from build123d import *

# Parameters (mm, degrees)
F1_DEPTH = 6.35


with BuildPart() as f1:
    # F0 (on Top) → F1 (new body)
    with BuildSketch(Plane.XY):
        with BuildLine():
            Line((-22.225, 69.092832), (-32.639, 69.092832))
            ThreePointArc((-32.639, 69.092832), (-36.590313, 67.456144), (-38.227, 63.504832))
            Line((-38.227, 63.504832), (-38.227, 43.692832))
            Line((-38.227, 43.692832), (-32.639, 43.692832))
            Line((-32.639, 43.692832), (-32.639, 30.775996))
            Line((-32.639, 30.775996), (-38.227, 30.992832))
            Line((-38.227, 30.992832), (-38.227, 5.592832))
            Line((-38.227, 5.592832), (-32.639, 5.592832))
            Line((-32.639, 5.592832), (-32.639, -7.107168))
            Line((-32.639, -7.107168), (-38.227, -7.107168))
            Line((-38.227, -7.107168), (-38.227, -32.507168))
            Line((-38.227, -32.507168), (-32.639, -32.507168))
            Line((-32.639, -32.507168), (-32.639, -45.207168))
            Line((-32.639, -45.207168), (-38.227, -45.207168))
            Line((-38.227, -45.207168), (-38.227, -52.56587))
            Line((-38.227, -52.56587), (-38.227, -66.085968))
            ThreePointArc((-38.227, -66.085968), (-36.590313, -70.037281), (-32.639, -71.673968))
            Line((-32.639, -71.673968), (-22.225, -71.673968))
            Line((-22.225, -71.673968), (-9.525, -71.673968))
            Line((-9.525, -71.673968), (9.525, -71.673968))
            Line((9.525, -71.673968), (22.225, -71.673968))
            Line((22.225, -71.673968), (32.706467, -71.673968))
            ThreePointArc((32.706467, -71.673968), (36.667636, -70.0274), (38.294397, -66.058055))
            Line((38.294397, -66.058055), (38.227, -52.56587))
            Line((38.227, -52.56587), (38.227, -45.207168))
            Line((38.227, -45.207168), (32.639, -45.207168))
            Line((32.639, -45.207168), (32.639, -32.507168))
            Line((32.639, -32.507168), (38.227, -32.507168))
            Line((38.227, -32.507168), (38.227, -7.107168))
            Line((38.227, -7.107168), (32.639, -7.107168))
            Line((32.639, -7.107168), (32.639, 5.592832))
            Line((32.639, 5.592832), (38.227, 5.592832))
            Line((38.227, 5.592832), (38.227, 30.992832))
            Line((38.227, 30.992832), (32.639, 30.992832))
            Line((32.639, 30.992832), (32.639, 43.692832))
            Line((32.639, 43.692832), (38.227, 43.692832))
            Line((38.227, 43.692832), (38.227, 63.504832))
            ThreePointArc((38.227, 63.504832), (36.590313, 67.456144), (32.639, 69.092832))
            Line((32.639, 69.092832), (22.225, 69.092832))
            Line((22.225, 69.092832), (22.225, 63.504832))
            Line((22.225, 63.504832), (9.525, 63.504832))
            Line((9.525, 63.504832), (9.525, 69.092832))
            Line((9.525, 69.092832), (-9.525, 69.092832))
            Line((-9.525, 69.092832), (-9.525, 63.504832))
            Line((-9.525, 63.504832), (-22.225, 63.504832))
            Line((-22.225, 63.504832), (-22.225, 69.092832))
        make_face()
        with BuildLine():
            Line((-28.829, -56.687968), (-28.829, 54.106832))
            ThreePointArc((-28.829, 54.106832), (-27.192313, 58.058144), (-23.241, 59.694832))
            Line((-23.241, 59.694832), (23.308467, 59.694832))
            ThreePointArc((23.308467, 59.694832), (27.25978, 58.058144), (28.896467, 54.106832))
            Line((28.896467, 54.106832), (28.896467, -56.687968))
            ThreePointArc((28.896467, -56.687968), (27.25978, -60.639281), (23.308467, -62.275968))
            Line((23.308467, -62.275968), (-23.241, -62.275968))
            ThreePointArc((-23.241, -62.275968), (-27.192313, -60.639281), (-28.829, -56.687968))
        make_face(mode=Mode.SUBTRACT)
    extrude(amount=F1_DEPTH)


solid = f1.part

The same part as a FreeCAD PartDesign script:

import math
import FreeCAD as App
import Part
import Sketcher
Q = App.Units.Quantity

doc = App.newDocument("Part")
body = doc.addObject("PartDesign::Body", "Body")

# Sketch on XY plane
sketch1 = body.newObject("Sketcher::SketchObject", "Sketch")
sketch1.AttachmentSupport = (doc.getObject("XY_Plane"), [""])
sketch1.MapMode = "FlatFace"
sketch1.addGeometry(Part.LineSegment(App.Vector(-22.225, 69.092832, 0), App.Vector(-32.639, 69.092832, 0)), False)
sketch1.addGeometry(Part.ArcOfCircle(Part.Circle(App.Vector(-32.638999, 63.504831, 0), App.Vector(0, 0, 1), 5.588001), math.radians(90.000007), math.radians(179.999993)), False)
sketch1.addGeometry(Part.LineSegment(App.Vector(-38.227, 63.504832, 0), App.Vector(-38.227, 43.692832, 0)), False)
sketch1.addGeometry(Part.LineSegment(App.Vector(-38.227, 43.692832, 0), App.Vector(-32.639, 43.692832, 0)), False)
sketch1.addGeometry(Part.LineSegment(App.Vector(-32.639, 43.692832, 0), App.Vector(-32.639, 30.775996, 0)), False)
sketch1.addGeometry(Part.LineSegment(App.Vector(-32.639, 30.775996, 0), App.Vector(-38.227, 30.992832, 0)), False)
sketch1.addGeometry(Part.LineSegment(App.Vector(-38.227, 30.992832, 0), App.Vector(-38.227, 5.592832, 0)), False)
sketch1.addGeometry(Part.LineSegment(App.Vector(-38.227, 5.592832, 0), App.Vector(-32.639, 5.592832, 0)), False)
sketch1.addGeometry(Part.LineSegment(App.Vector(-32.639, 5.592832, 0), App.Vector(-32.639, -7.107168, 0)), False)
sketch1.addGeometry(Part.LineSegment(App.Vector(-32.639, -7.107168, 0), App.Vector(-38.227, -7.107168, 0)), False)
sketch1.addGeometry(Part.LineSegment(App.Vector(-38.227, -7.107168, 0), App.Vector(-38.227, -32.507168, 0)), False)
sketch1.addGeometry(Part.LineSegment(App.Vector(-38.227, -32.507168, 0), App.Vector(-32.639, -32.507168, 0)), False)
sketch1.addGeometry(Part.LineSegment(App.Vector(-32.639, -32.507168, 0), App.Vector(-32.639, -45.207168, 0)), False)
sketch1.addGeometry(Part.LineSegment(App.Vector(-32.639, -45.207168, 0), App.Vector(-38.227, -45.207168, 0)), False)
sketch1.addGeometry(Part.LineSegment(App.Vector(-38.227, -45.207168, 0), App.Vector(-38.227, -66.085968, 0)), False)
sketch1.addGeometry(Part.ArcOfCircle(Part.Circle(App.Vector(-32.639001, -66.085969, 0), App.Vector(0, 0, 1), 5.587999), math.radians(179.999989), math.radians(270.000011)), False)
sketch1.addGeometry(Part.LineSegment(App.Vector(-32.639, -71.673968, 0), App.Vector(32.706467, -71.673968, 0)), False)
sketch1.addGeometry(Part.ArcOfCircle(Part.Circle(App.Vector(32.706468, -66.085969, 0), App.Vector(0, 0, 1), 5.587999), math.radians(-90.000007), math.radians(0.286213)), False)
sketch1.addGeometry(Part.LineSegment(App.Vector(38.294397, -66.058055, 0), App.Vector(38.227, -52.56587, 0)), False)
sketch1.addGeometry(Part.LineSegment(App.Vector(38.227, -52.56587, 0), App.Vector(38.227, -45.207168, 0)), False)
sketch1.addGeometry(Part.LineSegment(App.Vector(38.227, -45.207168, 0), App.Vector(32.639, -45.207168, 0)), False)
sketch1.addGeometry(Part.LineSegment(App.Vector(32.639, -45.207168, 0), App.Vector(32.639, -32.507168, 0)), False)
sketch1.addGeometry(Part.LineSegment(App.Vector(32.639, -32.507168, 0), App.Vector(38.227, -32.507168, 0)), False)
sketch1.addGeometry(Part.LineSegment(App.Vector(38.227, -32.507168, 0), App.Vector(38.227, -7.107168, 0)), False)
sketch1.addGeometry(Part.LineSegment(App.Vector(38.227, -7.107168, 0), App.Vector(32.639, -7.107168, 0)), False)
sketch1.addGeometry(Part.LineSegment(App.Vector(32.639, -7.107168, 0), App.Vector(32.639, 5.592832, 0)), False)
sketch1.addGeometry(Part.LineSegment(App.Vector(32.639, 5.592832, 0), App.Vector(38.227, 5.592832, 0)), False)
sketch1.addGeometry(Part.LineSegment(App.Vector(38.227, 5.592832, 0), App.Vector(38.227, 30.992832, 0)), False)
sketch1.addGeometry(Part.LineSegment(App.Vector(38.227, 30.992832, 0), App.Vector(32.639, 30.992832, 0)), False)
sketch1.addGeometry(Part.LineSegment(App.Vector(32.639, 30.992832, 0), App.Vector(32.639, 43.692832, 0)), False)
sketch1.addGeometry(Part.LineSegment(App.Vector(32.639, 43.692832, 0), App.Vector(38.227, 43.692832, 0)), False)
sketch1.addGeometry(Part.LineSegment(App.Vector(38.227, 43.692832, 0), App.Vector(38.227, 63.504832, 0)), False)
sketch1.addGeometry(Part.ArcOfCircle(Part.Circle(App.Vector(32.638999, 63.504831, 0), App.Vector(0, 0, 1), 5.588001), math.radians(0.000007), math.radians(89.999993)), False)
sketch1.addGeometry(Part.LineSegment(App.Vector(32.639, 69.092832, 0), App.Vector(22.225, 69.092832, 0)), False)
sketch1.addGeometry(Part.LineSegment(App.Vector(22.225, 69.092832, 0), App.Vector(22.225, 63.504832, 0)), False)
sketch1.addGeometry(Part.LineSegment(App.Vector(22.225, 63.504832, 0), App.Vector(9.525, 63.504832, 0)), False)
sketch1.addGeometry(Part.LineSegment(App.Vector(9.525, 63.504832, 0), App.Vector(9.525, 69.092832, 0)), False)
sketch1.addGeometry(Part.LineSegment(App.Vector(9.525, 69.092832, 0), App.Vector(-9.525, 69.092832, 0)), False)
sketch1.addGeometry(Part.LineSegment(App.Vector(-9.525, 69.092832, 0), App.Vector(-9.525, 63.504832, 0)), False)
sketch1.addGeometry(Part.LineSegment(App.Vector(-9.525, 63.504832, 0), App.Vector(-22.225, 63.504832, 0)), False)
sketch1.addGeometry(Part.LineSegment(App.Vector(-22.225, 63.504832, 0), App.Vector(-22.225, 69.092832, 0)), False)
sketch1.addGeometry(Part.ArcOfCircle(Part.Circle(App.Vector(-23.241001, -56.687969, 0), App.Vector(0, 0, 1), 5.587999), math.radians(179.999989), math.radians(270.000011)), False)
sketch1.addGeometry(Part.LineSegment(App.Vector(-28.829, -56.687968, 0), App.Vector(-28.829, 54.106832, 0)), False)
sketch1.addGeometry(Part.ArcOfCircle(Part.Circle(App.Vector(-23.240999, 54.106831, 0), App.Vector(0, 0, 1), 5.588001), math.radians(90.000007), math.radians(179.999993)), False)
sketch1.addGeometry(Part.LineSegment(App.Vector(-23.241, 59.694832, 0), App.Vector(23.308467, 59.694832, 0)), False)
sketch1.addGeometry(Part.ArcOfCircle(Part.Circle(App.Vector(23.308466, 54.106831, 0), App.Vector(0, 0, 1), 5.588001), math.radians(0.000007), math.radians(89.999993)), False)
sketch1.addGeometry(Part.LineSegment(App.Vector(28.896467, 54.106832, 0), App.Vector(28.896467, -56.687968, 0)), False)
sketch1.addGeometry(Part.ArcOfCircle(Part.Circle(App.Vector(23.308468, -56.687969, 0), App.Vector(0, 0, 1), 5.587999), math.radians(-90.000011), math.radians(0.000011)), False)
sketch1.addGeometry(Part.LineSegment(App.Vector(23.308467, -62.275968, 0), App.Vector(-23.241, -62.275968, 0)), False)
sketch1.addConstraint(Sketcher.Constraint("Tangent", 0, 2, 1, 1))
sketch1.addConstraint(Sketcher.Constraint("Tangent", 1, 2, 2, 1))
sketch1.addConstraint(Sketcher.Constraint("Coincident", 2, 2, 3, 1))
sketch1.addConstraint(Sketcher.Constraint("Coincident", 3, 2, 4, 1))
sketch1.addConstraint(Sketcher.Constraint("Coincident", 4, 2, 5, 1))
sketch1.addConstraint(Sketcher.Constraint("Coincident", 5, 2, 6, 1))
sketch1.addConstraint(Sketcher.Constraint("Coincident", 6, 2, 7, 1))
sketch1.addConstraint(Sketcher.Constraint("Coincident", 7, 2, 8, 1))
sketch1.addConstraint(Sketcher.Constraint("Coincident", 8, 2, 9, 1))
sketch1.addConstraint(Sketcher.Constraint("Coincident", 9, 2, 10, 1))
sketch1.addConstraint(Sketcher.Constraint("Coincident", 10, 2, 11, 1))
sketch1.addConstraint(Sketcher.Constraint("Coincident", 11, 2, 12, 1))
sketch1.addConstraint(Sketcher.Constraint("Coincident", 12, 2, 13, 1))
sketch1.addConstraint(Sketcher.Constraint("Coincident", 13, 2, 14, 1))
sketch1.addConstraint(Sketcher.Constraint("Tangent", 14, 2, 15, 1))
sketch1.addConstraint(Sketcher.Constraint("Tangent", 15, 2, 16, 1))
sketch1.addConstraint(Sketcher.Constraint("Tangent", 16, 2, 17, 1))
sketch1.addConstraint(Sketcher.Constraint("Tangent", 17, 2, 18, 1))
sketch1.addConstraint(Sketcher.Constraint("Coincident", 18, 2, 19, 1))
sketch1.addConstraint(Sketcher.Constraint("Coincident", 19, 2, 20, 1))
sketch1.addConstraint(Sketcher.Constraint("Coincident", 20, 2, 21, 1))
sketch1.addConstraint(Sketcher.Constraint("Coincident", 21, 2, 22, 1))
sketch1.addConstraint(Sketcher.Constraint("Coincident", 22, 2, 23, 1))
sketch1.addConstraint(Sketcher.Constraint("Coincident", 23, 2, 24, 1))
sketch1.addConstraint(Sketcher.Constraint("Coincident", 24, 2, 25, 1))
sketch1.addConstraint(Sketcher.Constraint("Coincident", 25, 2, 26, 1))
sketch1.addConstraint(Sketcher.Constraint("Coincident", 26, 2, 27, 1))
sketch1.addConstraint(Sketcher.Constraint("Coincident", 27, 2, 28, 1))
sketch1.addConstraint(Sketcher.Constraint("Coincident", 28, 2, 29, 1))
sketch1.addConstraint(Sketcher.Constraint("Coincident", 29, 2, 30, 1))
sketch1.addConstraint(Sketcher.Constraint("Coincident", 30, 2, 31, 1))
sketch1.addConstraint(Sketcher.Constraint("Tangent", 31, 2, 32, 1))
sketch1.addConstraint(Sketcher.Constraint("Tangent", 32, 2, 33, 1))
sketch1.addConstraint(Sketcher.Constraint("Coincident", 33, 2, 34, 1))
sketch1.addConstraint(Sketcher.Constraint("Coincident", 34, 2, 35, 1))
sketch1.addConstraint(Sketcher.Constraint("Coincident", 35, 2, 36, 1))
sketch1.addConstraint(Sketcher.Constraint("Coincident", 36, 2, 37, 1))
sketch1.addConstraint(Sketcher.Constraint("Coincident", 37, 2, 38, 1))
sketch1.addConstraint(Sketcher.Constraint("Coincident", 38, 2, 39, 1))
sketch1.addConstraint(Sketcher.Constraint("Coincident", 39, 2, 40, 1))
sketch1.addConstraint(Sketcher.Constraint("Coincident", 40, 2, 0, 1))
sketch1.addConstraint(Sketcher.Constraint("Tangent", 41, 1, 42, 1))
sketch1.addConstraint(Sketcher.Constraint("Tangent", 42, 2, 43, 2))
sketch1.addConstraint(Sketcher.Constraint("Tangent", 43, 1, 44, 1))
sketch1.addConstraint(Sketcher.Constraint("Tangent", 44, 2, 45, 2))
sketch1.addConstraint(Sketcher.Constraint("Tangent", 45, 1, 46, 1))
sketch1.addConstraint(Sketcher.Constraint("Tangent", 46, 2, 47, 2))
sketch1.addConstraint(Sketcher.Constraint("Tangent", 47, 1, 48, 1))
sketch1.addConstraint(Sketcher.Constraint("Tangent", 48, 2, 41, 2))
sketch1.addConstraint(Sketcher.Constraint("Horizontal", 0))
sketch1.addConstraint(Sketcher.Constraint("Vertical", 2))
sketch1.addConstraint(Sketcher.Constraint("Horizontal", 3))
sketch1.addConstraint(Sketcher.Constraint("Vertical", 4))
sketch1.addConstraint(Sketcher.Constraint("Vertical", 6))
sketch1.addConstraint(Sketcher.Constraint("Horizontal", 7))
sketch1.addConstraint(Sketcher.Constraint("Vertical", 8))
sketch1.addConstraint(Sketcher.Constraint("Horizontal", 9))
sketch1.addConstraint(Sketcher.Constraint("Vertical", 10))
sketch1.addConstraint(Sketcher.Constraint("Horizontal", 11))
sketch1.addConstraint(Sketcher.Constraint("Vertical", 12))
sketch1.addConstraint(Sketcher.Constraint("Horizontal", 13))
sketch1.addConstraint(Sketcher.Constraint("Vertical", 14))
sketch1.addConstraint(Sketcher.Constraint("Horizontal", 16))
sketch1.addConstraint(Sketcher.Constraint("Vertical", 19))
sketch1.addConstraint(Sketcher.Constraint("Horizontal", 20))
sketch1.addConstraint(Sketcher.Constraint("Vertical", 21))
sketch1.addConstraint(Sketcher.Constraint("Horizontal", 22))
sketch1.addConstraint(Sketcher.Constraint("Vertical", 23))
sketch1.addConstraint(Sketcher.Constraint("Horizontal", 24))
sketch1.addConstraint(Sketcher.Constraint("Vertical", 25))
sketch1.addConstraint(Sketcher.Constraint("Horizontal", 26))
sketch1.addConstraint(Sketcher.Constraint("Vertical", 27))
sketch1.addConstraint(Sketcher.Constraint("Horizontal", 28))
sketch1.addConstraint(Sketcher.Constraint("Vertical", 29))
sketch1.addConstraint(Sketcher.Constraint("Horizontal", 30))
sketch1.addConstraint(Sketcher.Constraint("Vertical", 31))
sketch1.addConstraint(Sketcher.Constraint("Horizontal", 33))
sketch1.addConstraint(Sketcher.Constraint("Vertical", 34))
sketch1.addConstraint(Sketcher.Constraint("Horizontal", 35))
sketch1.addConstraint(Sketcher.Constraint("Vertical", 36))
sketch1.addConstraint(Sketcher.Constraint("Horizontal", 37))
sketch1.addConstraint(Sketcher.Constraint("Vertical", 38))
sketch1.addConstraint(Sketcher.Constraint("Horizontal", 39))
sketch1.addConstraint(Sketcher.Constraint("Vertical", 40))
sketch1.addConstraint(Sketcher.Constraint("Vertical", 42))
sketch1.addConstraint(Sketcher.Constraint("Horizontal", 44))
sketch1.addConstraint(Sketcher.Constraint("Vertical", 46))
sketch1.addConstraint(Sketcher.Constraint("Horizontal", 48))
sketch1.addConstraint(Sketcher.Constraint("Equal", 1, 15))
sketch1.addConstraint(Sketcher.Constraint("Equal", 15, 17))
sketch1.addConstraint(Sketcher.Constraint("Equal", 17, 32))
sketch1.addConstraint(Sketcher.Constraint("Equal", 32, 41))
sketch1.addConstraint(Sketcher.Constraint("Equal", 41, 43))
sketch1.addConstraint(Sketcher.Constraint("Equal", 43, 45))
sketch1.addConstraint(Sketcher.Constraint("Equal", 45, 47))
sketch1.addConstraint(Sketcher.Constraint("Symmetric", 1, 3, 32, 3, -2))
sketch1.addConstraint(Sketcher.Constraint("Symmetric", 13, 2, 19, 2, -2))
sketch1.addConstraint(Sketcher.Constraint("Symmetric", 11, 2, 21, 2, -2))
sketch1.addConstraint(Sketcher.Constraint("Symmetric", 9, 2, 23, 2, -2))
sketch1.addConstraint(Sketcher.Constraint("Symmetric", 7, 2, 25, 2, -2))
sketch1.addConstraint(Sketcher.Constraint("Symmetric", 5, 2, 27, 2, -2))
sketch1.addConstraint(Sketcher.Constraint("Symmetric", 3, 2, 29, 2, -2))
sketch1.addConstraint(Sketcher.Constraint("Symmetric", 35, 2, 38, 2, -2))
sketch1.addConstraint(Sketcher.Constraint("Horizontal", 31, 2, 34, 2))
sketch1.addConstraint(Sketcher.Constraint("Horizontal", 33, 2, 36, 2))
sketch1.addConstraint(Sketcher.Constraint("Vertical", 1, 3, 15, 3))
sketch1.addConstraint(Sketcher.Constraint("Vertical", 0, 2, 3, 2))
sketch1.addConstraint(Sketcher.Constraint("Vertical", 2, 2, 5, 2))
sketch1.addConstraint(Sketcher.Constraint("Vertical", 4, 2, 7, 2))
sketch1.addConstraint(Sketcher.Constraint("Vertical", 6, 2, 9, 2))
sketch1.addConstraint(Sketcher.Constraint("Vertical", 8, 2, 11, 2))
sketch1.addConstraint(Sketcher.Constraint("Equal", 0, 33))
sketch1.addConstraint(Sketcher.Constraint("Equal", 39, 8))
sketch1.addConstraint(Sketcher.Constraint("Equal", 6, 10))
sketch1.addConstraint(Sketcher.Constraint("Equal", 8, 12))
sketch1.addConstraint(Sketcher.Constraint("Equal", 25, 29))
sketch1.addConstraint(Sketcher.Constraint("DistanceY", 6, 2, 6, 1, Q("1 in")))
sketch1.addConstraint(Sketcher.Constraint("Radius", 1, Q("0.22 in")))
sketch1.addConstraint(Sketcher.Constraint("DistanceX", 35, 2, 35, 1, Q("0.5 in")))
sketch1.addConstraint(Sketcher.Constraint("DistanceY", 2, 2, 0, 2, Q("1 in")))
sketch1.addConstraint(Sketcher.Constraint("DistanceX", 0, 2, 0, 1, Q("0.41 in")))
sketch1.addConstraint(Sketcher.Constraint("DistanceX", 37, 2, 37, 1, Q("0.75 in")))
sketch1.addConstraint(Sketcher.Constraint("DistanceX", 41, 3, 32, 3, Q("2.2 in")))
sketch1.addConstraint(Sketcher.Constraint("DistanceY", 14, 2, 14, 1, Q("0.822 in")))
sketch1.addConstraint(Sketcher.Constraint("DistanceY", 42, 1, 42, 2, Q("4.362 in")))
sketch1.addConstraint(Sketcher.Constraint("DistanceY", 15, 3, 41, 3, Q("0.37 in")))
sketch1.addConstraint(Sketcher.Constraint("DistanceX", 45, 3, 17, 3, Q("0.3700001 in")))
sketch1.addConstraint(Sketcher.Constraint("DistanceY", 19, 1, 19, 2, 7.358702))
sketch1.addConstraint(Sketcher.Constraint("DistanceX", 41, 3, 17, 2, 61.535398))
sketch1.addConstraint(Sketcher.Constraint("DistanceY", 4, 2, 4, 1, 12.916836))
sketch1.addConstraint(Sketcher.Constraint("DistanceY", -1, 1, 1, 3, 63.504831))
pad1 = body.newObject("PartDesign::Pad", "Pad")
pad1.Profile = sketch1
pad1.Length = Q("0.25 in")

doc.recompute()
